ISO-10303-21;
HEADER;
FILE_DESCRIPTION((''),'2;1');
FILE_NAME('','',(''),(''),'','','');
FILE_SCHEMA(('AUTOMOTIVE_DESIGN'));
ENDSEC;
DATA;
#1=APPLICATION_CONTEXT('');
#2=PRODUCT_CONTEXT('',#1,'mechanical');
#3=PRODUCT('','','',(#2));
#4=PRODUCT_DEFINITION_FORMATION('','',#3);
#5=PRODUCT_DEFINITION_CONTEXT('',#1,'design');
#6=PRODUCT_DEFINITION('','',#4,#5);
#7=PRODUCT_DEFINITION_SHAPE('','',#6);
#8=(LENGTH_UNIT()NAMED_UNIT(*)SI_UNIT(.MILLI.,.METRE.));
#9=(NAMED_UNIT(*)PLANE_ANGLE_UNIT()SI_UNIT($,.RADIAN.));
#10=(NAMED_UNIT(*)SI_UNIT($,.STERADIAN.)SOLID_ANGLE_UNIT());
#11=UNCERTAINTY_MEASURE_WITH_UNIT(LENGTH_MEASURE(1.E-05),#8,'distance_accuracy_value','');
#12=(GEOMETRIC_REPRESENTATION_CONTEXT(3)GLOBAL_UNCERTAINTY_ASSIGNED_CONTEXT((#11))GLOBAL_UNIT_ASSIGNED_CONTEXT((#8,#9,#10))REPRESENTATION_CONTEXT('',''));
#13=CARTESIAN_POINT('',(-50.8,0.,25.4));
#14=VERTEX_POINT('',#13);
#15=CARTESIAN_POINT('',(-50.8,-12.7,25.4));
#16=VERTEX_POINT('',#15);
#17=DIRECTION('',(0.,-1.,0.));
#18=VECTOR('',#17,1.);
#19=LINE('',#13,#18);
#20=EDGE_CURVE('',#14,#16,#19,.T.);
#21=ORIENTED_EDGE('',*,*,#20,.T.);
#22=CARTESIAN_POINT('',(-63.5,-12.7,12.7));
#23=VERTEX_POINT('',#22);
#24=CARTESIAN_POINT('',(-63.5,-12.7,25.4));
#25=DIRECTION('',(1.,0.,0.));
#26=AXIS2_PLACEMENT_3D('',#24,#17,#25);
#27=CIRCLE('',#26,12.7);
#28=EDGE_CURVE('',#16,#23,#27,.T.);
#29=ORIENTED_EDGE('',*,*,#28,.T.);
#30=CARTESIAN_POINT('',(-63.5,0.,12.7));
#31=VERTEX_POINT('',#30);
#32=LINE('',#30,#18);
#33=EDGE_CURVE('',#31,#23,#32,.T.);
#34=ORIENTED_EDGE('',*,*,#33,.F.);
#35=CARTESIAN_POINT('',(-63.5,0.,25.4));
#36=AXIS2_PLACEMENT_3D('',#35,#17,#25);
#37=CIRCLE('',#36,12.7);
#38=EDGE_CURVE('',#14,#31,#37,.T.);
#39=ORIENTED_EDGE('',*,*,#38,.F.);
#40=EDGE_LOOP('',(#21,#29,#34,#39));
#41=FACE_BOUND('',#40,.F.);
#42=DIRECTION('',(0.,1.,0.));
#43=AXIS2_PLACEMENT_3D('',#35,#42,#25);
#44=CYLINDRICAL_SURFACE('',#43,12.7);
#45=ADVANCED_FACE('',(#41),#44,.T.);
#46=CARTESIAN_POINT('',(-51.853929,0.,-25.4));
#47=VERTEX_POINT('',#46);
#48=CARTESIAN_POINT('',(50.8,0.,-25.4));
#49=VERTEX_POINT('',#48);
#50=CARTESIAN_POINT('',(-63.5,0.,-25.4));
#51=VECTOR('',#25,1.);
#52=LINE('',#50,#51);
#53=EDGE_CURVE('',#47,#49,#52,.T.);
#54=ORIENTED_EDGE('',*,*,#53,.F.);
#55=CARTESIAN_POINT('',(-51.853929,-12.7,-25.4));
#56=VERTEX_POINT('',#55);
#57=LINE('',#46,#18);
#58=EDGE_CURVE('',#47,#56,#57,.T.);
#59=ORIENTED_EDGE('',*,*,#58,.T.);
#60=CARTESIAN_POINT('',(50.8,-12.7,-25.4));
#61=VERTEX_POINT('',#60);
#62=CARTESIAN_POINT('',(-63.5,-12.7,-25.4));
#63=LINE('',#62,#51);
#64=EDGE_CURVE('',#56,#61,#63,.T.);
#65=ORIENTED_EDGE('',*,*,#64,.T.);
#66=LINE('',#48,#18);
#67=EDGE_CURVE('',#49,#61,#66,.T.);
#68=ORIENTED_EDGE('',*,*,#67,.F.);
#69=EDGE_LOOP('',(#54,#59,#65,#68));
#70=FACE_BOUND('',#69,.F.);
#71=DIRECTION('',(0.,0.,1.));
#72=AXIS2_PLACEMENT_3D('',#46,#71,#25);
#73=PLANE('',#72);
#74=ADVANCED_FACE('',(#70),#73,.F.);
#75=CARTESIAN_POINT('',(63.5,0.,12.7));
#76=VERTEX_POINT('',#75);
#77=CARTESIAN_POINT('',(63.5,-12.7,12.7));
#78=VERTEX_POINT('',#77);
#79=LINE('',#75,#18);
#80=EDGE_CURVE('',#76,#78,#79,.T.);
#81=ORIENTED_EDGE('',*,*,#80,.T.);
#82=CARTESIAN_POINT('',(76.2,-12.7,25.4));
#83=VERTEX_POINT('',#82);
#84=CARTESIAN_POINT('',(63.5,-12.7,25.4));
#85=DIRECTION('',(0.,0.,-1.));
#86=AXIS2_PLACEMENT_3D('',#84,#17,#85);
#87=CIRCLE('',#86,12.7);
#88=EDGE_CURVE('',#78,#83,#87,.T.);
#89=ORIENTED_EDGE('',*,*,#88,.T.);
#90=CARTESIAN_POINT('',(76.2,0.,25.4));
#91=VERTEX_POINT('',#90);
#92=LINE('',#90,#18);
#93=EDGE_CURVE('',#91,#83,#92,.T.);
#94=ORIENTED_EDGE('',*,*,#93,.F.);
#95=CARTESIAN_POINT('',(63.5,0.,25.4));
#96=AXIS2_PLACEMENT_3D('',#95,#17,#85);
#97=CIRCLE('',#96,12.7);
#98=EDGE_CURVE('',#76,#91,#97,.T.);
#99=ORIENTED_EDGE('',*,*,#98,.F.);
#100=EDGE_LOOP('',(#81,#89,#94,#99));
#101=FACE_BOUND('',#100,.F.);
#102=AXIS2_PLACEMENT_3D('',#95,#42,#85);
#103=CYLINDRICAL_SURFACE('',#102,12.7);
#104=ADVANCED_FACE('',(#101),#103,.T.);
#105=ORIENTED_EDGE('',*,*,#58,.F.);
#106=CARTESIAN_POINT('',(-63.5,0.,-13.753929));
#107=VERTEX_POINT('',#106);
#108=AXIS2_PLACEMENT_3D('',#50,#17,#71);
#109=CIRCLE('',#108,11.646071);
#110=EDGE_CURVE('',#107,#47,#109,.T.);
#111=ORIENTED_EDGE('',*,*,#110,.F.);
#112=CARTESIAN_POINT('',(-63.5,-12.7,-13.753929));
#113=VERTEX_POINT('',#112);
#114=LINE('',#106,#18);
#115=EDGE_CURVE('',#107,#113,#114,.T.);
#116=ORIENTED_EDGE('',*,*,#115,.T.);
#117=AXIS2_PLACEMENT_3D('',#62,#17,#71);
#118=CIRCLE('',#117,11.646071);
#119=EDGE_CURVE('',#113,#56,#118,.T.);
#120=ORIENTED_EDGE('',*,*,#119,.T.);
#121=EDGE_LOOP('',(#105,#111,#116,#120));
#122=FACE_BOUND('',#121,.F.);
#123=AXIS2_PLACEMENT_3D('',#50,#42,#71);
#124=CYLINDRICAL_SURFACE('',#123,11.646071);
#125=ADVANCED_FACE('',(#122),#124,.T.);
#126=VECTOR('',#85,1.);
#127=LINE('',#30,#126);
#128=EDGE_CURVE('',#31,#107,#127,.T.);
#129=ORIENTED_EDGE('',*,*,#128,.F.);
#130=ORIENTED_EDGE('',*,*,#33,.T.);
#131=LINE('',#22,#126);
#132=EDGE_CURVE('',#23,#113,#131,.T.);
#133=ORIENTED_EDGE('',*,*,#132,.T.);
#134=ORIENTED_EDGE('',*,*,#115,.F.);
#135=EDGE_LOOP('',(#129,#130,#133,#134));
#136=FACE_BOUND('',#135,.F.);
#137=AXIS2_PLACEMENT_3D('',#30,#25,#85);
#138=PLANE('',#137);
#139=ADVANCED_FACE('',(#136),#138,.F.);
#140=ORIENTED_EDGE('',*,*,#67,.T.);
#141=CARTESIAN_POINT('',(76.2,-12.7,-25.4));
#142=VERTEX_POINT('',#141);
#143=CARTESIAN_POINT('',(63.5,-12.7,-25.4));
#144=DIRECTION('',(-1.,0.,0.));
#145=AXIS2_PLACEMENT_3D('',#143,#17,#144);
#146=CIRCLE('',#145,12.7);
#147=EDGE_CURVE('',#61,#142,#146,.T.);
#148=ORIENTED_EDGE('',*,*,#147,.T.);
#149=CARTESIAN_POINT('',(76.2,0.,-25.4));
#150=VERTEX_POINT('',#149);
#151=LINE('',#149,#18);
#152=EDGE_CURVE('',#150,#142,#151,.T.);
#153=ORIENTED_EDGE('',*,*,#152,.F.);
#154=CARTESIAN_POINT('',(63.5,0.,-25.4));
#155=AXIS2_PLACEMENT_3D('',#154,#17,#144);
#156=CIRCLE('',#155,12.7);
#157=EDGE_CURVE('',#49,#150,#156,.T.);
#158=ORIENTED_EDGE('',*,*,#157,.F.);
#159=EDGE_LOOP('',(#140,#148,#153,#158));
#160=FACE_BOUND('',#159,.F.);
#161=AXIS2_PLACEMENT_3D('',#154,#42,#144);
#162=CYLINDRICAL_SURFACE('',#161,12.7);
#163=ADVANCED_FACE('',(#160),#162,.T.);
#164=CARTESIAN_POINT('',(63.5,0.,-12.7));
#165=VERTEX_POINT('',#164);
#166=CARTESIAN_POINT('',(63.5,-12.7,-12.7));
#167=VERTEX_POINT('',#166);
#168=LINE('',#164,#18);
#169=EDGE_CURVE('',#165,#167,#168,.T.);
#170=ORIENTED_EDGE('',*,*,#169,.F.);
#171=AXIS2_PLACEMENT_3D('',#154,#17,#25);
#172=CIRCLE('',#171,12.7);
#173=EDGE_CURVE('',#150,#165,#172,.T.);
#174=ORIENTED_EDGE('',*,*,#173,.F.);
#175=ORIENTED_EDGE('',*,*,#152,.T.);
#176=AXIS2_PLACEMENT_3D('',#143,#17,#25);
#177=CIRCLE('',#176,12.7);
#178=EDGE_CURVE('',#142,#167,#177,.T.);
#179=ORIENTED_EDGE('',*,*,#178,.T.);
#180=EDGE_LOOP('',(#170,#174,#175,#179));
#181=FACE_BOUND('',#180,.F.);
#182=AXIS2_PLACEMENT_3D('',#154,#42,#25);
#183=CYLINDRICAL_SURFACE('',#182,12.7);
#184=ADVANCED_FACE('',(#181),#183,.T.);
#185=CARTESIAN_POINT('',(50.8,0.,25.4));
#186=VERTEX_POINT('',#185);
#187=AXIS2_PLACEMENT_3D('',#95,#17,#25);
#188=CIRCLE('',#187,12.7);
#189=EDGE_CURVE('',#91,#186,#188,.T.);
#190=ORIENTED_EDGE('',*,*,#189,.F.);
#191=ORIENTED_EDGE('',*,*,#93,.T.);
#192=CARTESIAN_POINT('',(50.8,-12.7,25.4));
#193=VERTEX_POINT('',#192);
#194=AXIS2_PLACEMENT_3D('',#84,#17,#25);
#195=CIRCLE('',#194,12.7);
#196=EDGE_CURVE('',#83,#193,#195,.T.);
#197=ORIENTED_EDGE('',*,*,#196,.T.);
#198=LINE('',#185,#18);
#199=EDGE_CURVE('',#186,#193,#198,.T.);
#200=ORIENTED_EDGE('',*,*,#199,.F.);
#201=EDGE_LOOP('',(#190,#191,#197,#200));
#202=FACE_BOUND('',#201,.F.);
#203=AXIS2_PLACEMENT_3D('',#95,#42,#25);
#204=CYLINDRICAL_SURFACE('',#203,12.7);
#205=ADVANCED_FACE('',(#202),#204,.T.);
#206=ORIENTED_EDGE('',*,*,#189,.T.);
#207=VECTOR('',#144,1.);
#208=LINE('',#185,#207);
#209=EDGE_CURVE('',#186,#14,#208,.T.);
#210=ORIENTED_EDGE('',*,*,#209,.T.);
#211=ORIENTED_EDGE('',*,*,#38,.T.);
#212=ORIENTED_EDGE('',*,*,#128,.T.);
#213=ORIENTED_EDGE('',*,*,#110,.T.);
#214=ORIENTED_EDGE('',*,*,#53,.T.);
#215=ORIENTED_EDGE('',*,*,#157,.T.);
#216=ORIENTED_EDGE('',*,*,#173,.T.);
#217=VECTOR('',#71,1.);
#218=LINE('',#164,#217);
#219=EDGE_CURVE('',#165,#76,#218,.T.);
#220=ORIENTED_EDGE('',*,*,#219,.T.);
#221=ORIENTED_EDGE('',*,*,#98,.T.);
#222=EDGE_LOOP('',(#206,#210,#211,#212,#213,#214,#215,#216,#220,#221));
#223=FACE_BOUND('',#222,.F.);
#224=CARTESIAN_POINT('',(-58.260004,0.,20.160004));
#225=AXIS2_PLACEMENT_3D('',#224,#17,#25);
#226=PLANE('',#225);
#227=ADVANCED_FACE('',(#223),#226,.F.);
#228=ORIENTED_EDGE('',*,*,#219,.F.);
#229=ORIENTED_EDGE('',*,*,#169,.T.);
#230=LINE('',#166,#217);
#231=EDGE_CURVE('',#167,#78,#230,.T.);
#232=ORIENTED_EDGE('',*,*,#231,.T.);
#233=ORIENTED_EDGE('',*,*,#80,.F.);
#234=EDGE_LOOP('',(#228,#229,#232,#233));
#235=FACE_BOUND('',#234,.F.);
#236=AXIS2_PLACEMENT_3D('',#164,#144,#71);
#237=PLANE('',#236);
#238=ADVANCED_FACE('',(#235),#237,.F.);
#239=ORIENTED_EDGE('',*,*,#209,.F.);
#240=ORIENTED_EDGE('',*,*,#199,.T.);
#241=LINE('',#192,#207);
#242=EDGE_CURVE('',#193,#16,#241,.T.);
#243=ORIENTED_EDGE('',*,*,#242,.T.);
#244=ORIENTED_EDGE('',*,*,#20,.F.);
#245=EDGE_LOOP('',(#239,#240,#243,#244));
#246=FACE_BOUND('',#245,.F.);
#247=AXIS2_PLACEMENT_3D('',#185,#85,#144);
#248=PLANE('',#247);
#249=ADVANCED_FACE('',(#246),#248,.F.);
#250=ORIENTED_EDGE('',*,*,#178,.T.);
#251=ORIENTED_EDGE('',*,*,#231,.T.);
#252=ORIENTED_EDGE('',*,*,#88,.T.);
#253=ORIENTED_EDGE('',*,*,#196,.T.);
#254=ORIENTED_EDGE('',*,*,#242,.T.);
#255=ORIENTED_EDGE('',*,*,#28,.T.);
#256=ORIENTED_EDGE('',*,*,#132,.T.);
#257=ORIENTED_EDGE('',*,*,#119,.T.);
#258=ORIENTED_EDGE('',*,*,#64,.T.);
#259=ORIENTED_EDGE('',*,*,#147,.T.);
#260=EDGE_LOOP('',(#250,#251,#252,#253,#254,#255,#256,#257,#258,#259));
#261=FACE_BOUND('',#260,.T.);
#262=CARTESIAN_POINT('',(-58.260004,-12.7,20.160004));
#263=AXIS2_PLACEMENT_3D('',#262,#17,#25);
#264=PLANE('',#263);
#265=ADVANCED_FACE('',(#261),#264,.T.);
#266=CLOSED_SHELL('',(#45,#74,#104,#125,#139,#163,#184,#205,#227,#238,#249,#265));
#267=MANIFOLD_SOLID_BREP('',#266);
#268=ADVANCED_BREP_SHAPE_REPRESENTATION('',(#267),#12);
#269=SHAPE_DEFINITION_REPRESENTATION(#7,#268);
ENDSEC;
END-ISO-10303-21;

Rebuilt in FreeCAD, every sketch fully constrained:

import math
import FreeCAD as App
import Part
import Sketcher

V = App.Vector
Q = App.Units.Quantity

doc = App.newDocument("Part")
body = doc.addObject("PartDesign::Body", "Body")

# Sketch on XZ plane
sketch1 = body.newObject("Sketcher::SketchObject", "Sketch")
sketch1.AttachmentSupport = (doc.getObject("XZ_Plane"), [""])
sketch1.MapMode = "FlatFace"
sketch1.addGeometry(Part.ArcOfCircle(Part.Circle(V(-64, 25, 0), V(0, 0, 1), 13), math.radians(0), math.radians(270)), False)
sketch1.addGeometry(Part.LineSegment(V(-64, 13, 0), V(-64, -14, 0)), False)
sketch1.addGeometry(Part.ArcOfCircle(Part.Circle(V(-64, -25, 0), V(0, 0, 1), 12), math.radians(90), math.radians(360)), False)
sketch1.addGeometry(Part.LineSegment(V(-52, -25, 0), V(51, -25, 0)), False)
sketch1.addGeometry(Part.ArcOfCircle(Part.Circle(V(64, -25, 0), V(0, 0, 1), 13), math.radians(180), math.radians(360)), False)
sketch1.addGeometry(Part.ArcOfCircle(Part.Circle(V(64, -25, 0), V(0, 0, 1), 13), math.radians(0), math.radians(90)), False)
sketch1.addGeometry(Part.LineSegment(V(64, -13, 0), V(64, 13, 0)), False)
sketch1.addGeometry(Part.ArcOfCircle(Part.Circle(V(64, 25, 0), V(0, 0, 1), 13), math.radians(-90), math.radians(0)), False)
sketch1.addGeometry(Part.ArcOfCircle(Part.Circle(V(64, 25, 0), V(0, 0, 1), 13), math.radians(0), math.radians(180)), False)
sketch1.addGeometry(Part.LineSegment(V(51, 25, 0), V(-51, 25, 0)), False)
sketch1.addConstraint(Sketcher.Constraint("Coincident", 0, 2, 1, 1))
sketch1.addConstraint(Sketcher.Constraint("Coincident", 1, 2, 2, 1))
sketch1.addConstraint(Sketcher.Constraint("Coincident", 2, 2, 3, 1))
sketch1.addConstraint(Sketcher.Constraint("Coincident", 3, 2, 4, 1))
sketch1.addConstraint(Sketcher.Constraint("Tangent", 4, 2, 5, 1))
sketch1.addConstraint(Sketcher.Constraint("Coincident", 5, 2, 6, 1))
sketch1.addConstraint(Sketcher.Constraint("Coincident", 6, 2, 7, 1))
sketch1.addConstraint(Sketcher.Constraint("Tangent", 7, 2, 8, 1))
sketch1.addConstraint(Sketcher.Constraint("Coincident", 8, 2, 9, 1))
sketch1.addConstraint(Sketcher.Constraint("Coincident", 9, 2, 0, 1))
sketch1.addConstraint(Sketcher.Constraint("Vertical", 1))
sketch1.addConstraint(Sketcher.Constraint("Horizontal", 3))
sketch1.addConstraint(Sketcher.Constraint("Vertical", 6))
sketch1.addConstraint(Sketcher.Constraint("Horizontal", 9))
sketch1.addConstraint(Sketcher.Constraint("Equal", 0, 4))
sketch1.addConstraint(Sketcher.Constraint("Equal", 4, 5))
sketch1.addConstraint(Sketcher.Constraint("Equal", 5, 7))
sketch1.addConstraint(Sketcher.Constraint("Equal", 7, 8))
sketch1.addConstraint(Sketcher.Constraint("Symmetric", 0, 3, 4, 3, -1, 1))
sketch1.addConstraint(Sketcher.Constraint("Symmetric", 2, 3, 7, 3, -1, 1))
sketch1.addConstraint(Sketcher.Constraint("Symmetric", 2, 3, 4, 3, -2))
sketch1.addConstraint(Sketcher.Constraint("Horizontal", 5, 3, 2, 2))
sketch1.addConstraint(Sketcher.Constraint("Horizontal", 3, 2, 4, 2))
sketch1.addConstraint(Sketcher.Constraint("Horizontal", 8, 3, 7, 2))
sketch1.addConstraint(Sketcher.Constraint("Horizontal", 7, 2, 8, 2))
sketch1.addConstraint(Sketcher.Constraint("Vertical", 2, 3, 0, 2))
sketch1.addConstraint(Sketcher.Constraint("Vertical", 8, 3, 5, 2))
sketch1.addConstraint(Sketcher.Constraint("Radius", 0, Q("0.5 in")))
sketch1.addConstraint(Sketcher.Constraint("DistanceX", 9, 2, 9, 1, Q("4 in")))
sketch1.addConstraint(Sketcher.Constraint("DistanceY", 6, 1, 6, 2, Q("1 in")))
sketch1.addConstraint(Sketcher.Constraint("Radius", 2, Q("11.646071 mm")))
pad1 = body.newObject("PartDesign::Pad", "Pad")
pad1.Profile = sketch1
pad1.Length = Q("0.5 in")

doc.recompute()
